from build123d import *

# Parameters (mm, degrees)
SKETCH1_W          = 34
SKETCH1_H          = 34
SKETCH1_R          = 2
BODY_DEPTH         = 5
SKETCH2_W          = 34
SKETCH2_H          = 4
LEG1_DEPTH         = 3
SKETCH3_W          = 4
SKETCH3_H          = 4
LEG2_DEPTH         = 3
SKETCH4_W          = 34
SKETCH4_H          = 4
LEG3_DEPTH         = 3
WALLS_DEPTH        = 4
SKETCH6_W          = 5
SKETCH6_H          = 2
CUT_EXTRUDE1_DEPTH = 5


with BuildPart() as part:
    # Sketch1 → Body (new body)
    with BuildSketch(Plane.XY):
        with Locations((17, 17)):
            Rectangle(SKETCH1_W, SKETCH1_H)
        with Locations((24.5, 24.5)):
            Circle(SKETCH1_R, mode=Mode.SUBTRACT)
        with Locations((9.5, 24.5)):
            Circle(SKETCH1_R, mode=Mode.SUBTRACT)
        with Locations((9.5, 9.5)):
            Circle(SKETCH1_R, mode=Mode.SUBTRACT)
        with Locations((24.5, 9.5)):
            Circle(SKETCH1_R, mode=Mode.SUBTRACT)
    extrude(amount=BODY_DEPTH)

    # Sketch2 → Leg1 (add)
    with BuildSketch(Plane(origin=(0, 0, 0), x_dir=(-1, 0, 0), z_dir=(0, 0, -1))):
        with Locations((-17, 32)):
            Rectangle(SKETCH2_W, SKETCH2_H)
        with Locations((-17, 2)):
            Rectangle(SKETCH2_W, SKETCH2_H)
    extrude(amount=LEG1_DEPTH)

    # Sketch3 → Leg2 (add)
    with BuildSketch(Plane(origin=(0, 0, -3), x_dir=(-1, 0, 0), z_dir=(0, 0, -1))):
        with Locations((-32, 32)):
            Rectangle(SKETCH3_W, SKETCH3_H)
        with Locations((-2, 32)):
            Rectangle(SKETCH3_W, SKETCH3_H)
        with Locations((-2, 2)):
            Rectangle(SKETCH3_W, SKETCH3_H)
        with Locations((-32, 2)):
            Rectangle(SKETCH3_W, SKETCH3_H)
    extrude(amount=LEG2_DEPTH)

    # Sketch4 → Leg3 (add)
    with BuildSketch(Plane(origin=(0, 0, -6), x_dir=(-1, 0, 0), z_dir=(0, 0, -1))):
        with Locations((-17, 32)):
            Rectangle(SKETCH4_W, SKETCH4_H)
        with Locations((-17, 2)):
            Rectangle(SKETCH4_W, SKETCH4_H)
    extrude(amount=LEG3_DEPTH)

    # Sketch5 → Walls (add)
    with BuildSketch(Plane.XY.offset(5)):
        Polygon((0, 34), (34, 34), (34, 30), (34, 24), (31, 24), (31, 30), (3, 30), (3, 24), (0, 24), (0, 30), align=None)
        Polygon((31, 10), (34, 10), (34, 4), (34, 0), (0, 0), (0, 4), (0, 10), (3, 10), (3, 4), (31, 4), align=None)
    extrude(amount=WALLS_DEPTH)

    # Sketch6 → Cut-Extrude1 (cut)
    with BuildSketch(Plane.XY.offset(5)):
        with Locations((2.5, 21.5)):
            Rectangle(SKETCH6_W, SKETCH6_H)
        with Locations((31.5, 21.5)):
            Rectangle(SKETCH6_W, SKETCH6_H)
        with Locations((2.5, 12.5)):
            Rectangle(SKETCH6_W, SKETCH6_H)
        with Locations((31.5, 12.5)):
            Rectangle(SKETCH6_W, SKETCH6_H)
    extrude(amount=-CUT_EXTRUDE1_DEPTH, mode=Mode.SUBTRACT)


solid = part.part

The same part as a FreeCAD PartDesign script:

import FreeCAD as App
import Part
import Sketcher
Q = App.Units.Quantity


def add_polygon(sketch, points):
    """Adds a closed chain of lines whose ends are joined by coincident constraints."""
    first, n = sketch.GeometryCount, len(points)
    for a, b in zip(points, points[1:] + points[:1]):
        sketch.addGeometry(Part.LineSegment(App.Vector(*a, 0), App.Vector(*b, 0)), False)
    for i in range(n):
        sketch.addConstraint(Sketcher.Constraint("Coincident", first + i, 2, first + (i + 1) % n, 1))

doc = App.newDocument("Part")
body = doc.addObject("PartDesign::Body", "Body")

sketch1 = body.newObject("Sketcher::SketchObject", "Sketch")
sketch1.AttachmentSupport = (doc.getObject("XY_Plane"), [""])
sketch1.MapMode = "FlatFace"
add_polygon(sketch1, [(0, 34), (0, 0), (34, 0), (34, 34)])
sketch1.addGeometry(Part.Circle(App.Vector(9.5, 9.5, 0), App.Vector(0, 0, 1), 2), False)
sketch1.addGeometry(Part.Circle(App.Vector(24.5, 9.5, 0), App.Vector(0, 0, 1), 2), False)
sketch1.addGeometry(Part.Circle(App.Vector(9.5, 24.5, 0), App.Vector(0, 0, 1), 2), False)
sketch1.addGeometry(Part.Circle(App.Vector(24.5, 24.5, 0), App.Vector(0, 0, 1), 2), False)
sketch1.addConstraint([
    Sketcher.Constraint("Vertical", 0),
    Sketcher.Constraint("Horizontal", 1),
    Sketcher.Constraint("Vertical", 2),
    Sketcher.Constraint("Horizontal", 3),
    Sketcher.Constraint("Coincident", 0, 2, -1, 1),
    Sketcher.Constraint("Equal", 4, 5),
    Sketcher.Constraint("Equal", 5, 6),
    Sketcher.Constraint("Equal", 6, 7),
    Sketcher.Constraint("Horizontal", 4, 3, 5, 3),
    Sketcher.Constraint("Horizontal", 6, 3, 7, 3),
    Sketcher.Constraint("Vertical", 4, 3, 6, 3),
    Sketcher.Constraint("Vertical", 5, 3, 7, 3),
    Sketcher.Constraint("Equal", 3, 0),
    Sketcher.Constraint("Diameter", 4, Q("4 mm")),
    Sketcher.Constraint("DistanceX", 1, 1, 1, 2, Q("34 mm")),
    Sketcher.Constraint("DistanceX", 4, 3, 5, 3, Q("15 mm")),
    Sketcher.Constraint("DistanceY", 4, 3, 6, 3, Q("15 mm")),
    Sketcher.Constraint("DistanceX", -1, 1, 4, 3, Q("9.5 mm")),
    Sketcher.Constraint("DistanceY", -1, 1, 4, 3, Q("9.5 mm")),
])
pad1 = body.newObject("PartDesign::Pad", "Pad")
pad1.Profile = sketch1
pad1.Length = 5

sketch2 = body.newObject("Sketcher::SketchObject", "Sketch001")
sketch2.AttachmentSupport = (doc.getObject("XY_Plane"), [""])
sketch2.MapMode = "FlatFace"
add_polygon(sketch2, [(34, 34), (34, 30), (0, 30), (0, 34)])
add_polygon(sketch2, [(34, 4), (34, 0), (0, 0), (0, 4)])
sketch2.addConstraint([
    Sketcher.Constraint("Vertical", 0),
    Sketcher.Constraint("Horizontal", 1),
    Sketcher.Constraint("Vertical", 2),
    Sketcher.Constraint("Horizontal", 3),
    Sketcher.Constraint("Vertical", 4),
    Sketcher.Constraint("Horizontal", 5),
    Sketcher.Constraint("Vertical", 6),
    Sketcher.Constraint("Horizontal", 7),
    Sketcher.Constraint("Coincident", 5, 2, -1, 1),
    Sketcher.Constraint("PointOnObject", 1, 2, -2),
    Sketcher.Constraint("Vertical", 3, 2, 4, 2),
    Sketcher.Constraint("Equal", 2, 4),
    Sketcher.Constraint("DistanceX", 1, 2, 1, 1, Q("34 mm")),
    Sketcher.Constraint("DistanceY", 0, 2, 0, 1, Q("4 mm")),
    Sketcher.Constraint("DistanceY", -1, 1, 0, 2, Q("30 mm")),
])
pad2 = body.newObject("PartDesign::Pad", "Pad001")
pad2.Profile = sketch2
pad2.Length = 3
pad2.Reversed = True

sketch3 = body.newObject("Sketcher::SketchObject", "Sketch002")
sketch3.AttachmentSupport = (doc.getObject("XY_Plane"), [""])
sketch3.MapMode = "FlatFace"
sketch3.AttachmentOffset = App.Placement(App.Vector(0, 0, -3), App.Rotation())
add_polygon(sketch3, [(34, 34), (34, 30), (30, 30), (30, 34)])
add_polygon(sketch3, [(4, 34), (4, 30), (0, 30), (0, 34)])
add_polygon(sketch3, [(4, 4), (4, 0), (0, 0), (0, 4)])
add_polygon(sketch3, [(34, 4), (34, 0), (30, 0), (30, 4)])
sketch3.addConstraint([
    Sketcher.Constraint("Vertical", 0),
    Sketcher.Constraint("Horizontal", 1),
    Sketcher.Constraint("Vertical", 2),
    Sketcher.Constraint("Horizontal", 3),
    Sketcher.Constraint("Vertical", 4),
    Sketcher.Constraint("Horizontal", 5),
    Sketcher.Constraint("Vertical", 6),
    Sketcher.Constraint("Horizontal", 7),
    Sketcher.Constraint("Vertical", 8),
    Sketcher.Constraint("Horizontal", 9),
    Sketcher.Constraint("Vertical", 10),
    Sketcher.Constraint("Horizontal", 11),
    Sketcher.Constraint("Vertical", 12),
    Sketcher.Constraint("Horizontal", 13),
    Sketcher.Constraint("Vertical", 14),
    Sketcher.Constraint("Horizontal", 15),
    Sketcher.Constraint("Coincident", 9, 2, -1, 1),
    Sketcher.Constraint("PointOnObject", 5, 2, -2),
    Sketcher.Constraint("PointOnObject", 12, 2, -1),
    Sketcher.Constraint("Horizontal", 1, 2, 4, 2),
    Sketcher.Constraint("Horizontal", 3, 2, 6, 2),
    Sketcher.Constraint("Horizontal", 11, 2, 14, 2),
    Sketcher.Constraint("Vertical", 7, 2, 8, 2),
    Sketcher.Constraint("Vertical", 3, 2, 12, 2),
    Sketcher.Constraint("Vertical", 2, 2, 13, 2),
    Sketcher.Constraint("Equal", 3, 5),
    Sketcher.Constraint("Equal", 15, 0),
    Sketcher.Constraint("Equal", 6, 8),
    Sketcher.Constraint("DistanceX", 1, 2, 1, 1, Q("4 mm")),
    Sketcher.Constraint("DistanceX", -1, 1, 0, 2, Q("34 mm")),
    Sketcher.Constraint("DistanceY", -1, 1, 0, 2, Q("30 mm")),
])
pad3 = body.newObject("PartDesign::Pad", "Pad002")
pad3.Profile = sketch3
pad3.Length = 3
pad3.Reversed = True

sketch4 = body.newObject("Sketcher::SketchObject", "Sketch003")
sketch4.AttachmentSupport = (doc.getObject("XY_Plane"), [""])
sketch4.MapMode = "FlatFace"
sketch4.AttachmentOffset = App.Placement(App.Vector(0, 0, -6), App.Rotation())
add_polygon(sketch4, [(34, 34), (34, 30), (0, 30), (0, 34)])
add_polygon(sketch4, [(34, 4), (34, 0), (0, 0), (0, 4)])
sketch4.addConstraint([
    Sketcher.Constraint("Vertical", 0),
    Sketcher.Constraint("Horizontal", 1),
    Sketcher.Constraint("Vertical", 2),
    Sketcher.Constraint("Horizontal", 3),
    Sketcher.Constraint("Vertical", 4),
    Sketcher.Constraint("Horizontal", 5),
    Sketcher.Constraint("Vertical", 6),
    Sketcher.Constraint("Horizontal", 7),
    Sketcher.Constraint("Coincident", 5, 2, -1, 1),
    Sketcher.Constraint("PointOnObject", 1, 2, -2),
    Sketcher.Constraint("Vertical", 3, 2, 4, 2),
    Sketcher.Constraint("Equal", 2, 4),
    Sketcher.Constraint("DistanceX", 1, 2, 1, 1, Q("34 mm")),
    Sketcher.Constraint("DistanceY", 0, 2, 0, 1, Q("4 mm")),
    Sketcher.Constraint("DistanceY", -1, 1, 0, 2, Q("30 mm")),
])
pad4 = body.newObject("PartDesign::Pad", "Pad003")
pad4.Profile = sketch4
pad4.Length = 3
pad4.Reversed = True

sketch5 = body.newObject("Sketcher::SketchObject", "Sketch004")
sketch5.AttachmentSupport = (doc.getObject("XY_Plane"), [""])
sketch5.MapMode = "FlatFace"
sketch5.AttachmentOffset = App.Placement(App.Vector(0, 0, 5), App.Rotation())
add_polygon(sketch5, [(34, 34), (0, 34), (0, 24), (3, 24), (3, 30), (31, 30), (31, 24), (34, 24)])
add_polygon(sketch5, [(34, 10), (31, 10), (31, 4), (3, 4), (3, 10), (0, 10), (0, 0), (34, 0)])
sketch5.addConstraint([
    Sketcher.Constraint("Horizontal", 0),
    Sketcher.Constraint("Vertical", 1),
    Sketcher.Constraint("Horizontal", 2),
    Sketcher.Constraint("Vertical", 3),
    Sketcher.Constraint("Horizontal", 4),
    Sketcher.Constraint("Vertical", 5),
    Sketcher.Constraint("Horizontal", 6),
    Sketcher.Constraint("Vertical", 7),
    Sketcher.Constraint("Horizontal", 8),
    Sketcher.Constraint("Vertical", 9),
    Sketcher.Constraint("Horizontal", 10),
    Sketcher.Constraint("Vertical", 11),
    Sketcher.Constraint("Horizontal", 12),
    Sketcher.Constraint("Vertical", 13),
    Sketcher.Constraint("Horizontal", 14),
    Sketcher.Constraint("Vertical", 15),
    Sketcher.Constraint("Coincident", 13, 2, -1, 1),
    Sketcher.Constraint("PointOnObject", 0, 2, -2),
    Sketcher.Constraint("Horizontal", 2, 2, 5, 2),
    Sketcher.Constraint("Horizontal", 8, 2, 11, 2),
    Sketcher.Constraint("Vertical", 5, 2, 8, 2),
    Sketcher.Constraint("Vertical", 3, 2, 10, 2),
    Sketcher.Constraint("Vertical", 7, 2, 14, 2),
    Sketcher.Constraint("Equal", 2, 6),
    Sketcher.Constraint("Equal", 5, 9),
    Sketcher.Constraint("Equal", 7, 13),
    Sketcher.Constraint("DistanceX", 0, 2, 0, 1, Q("34 mm")),
    Sketcher.Constraint("DistanceX", 2, 1, 2, 2, Q("3 mm")),
    Sketcher.Constraint("DistanceY", 1, 2, 1, 1, Q("10 mm")),
    Sketcher.Constraint("DistanceY", 3, 1, 3, 2, Q("6 mm")),
    Sketcher.Constraint("DistanceY", -1, 1, 0, 2, Q("34 mm")),
])
pad5 = body.newObject("PartDesign::Pad", "Pad004")
pad5.Profile = sketch5
pad5.Length = 4

sketch6 = body.newObject("Sketcher::SketchObject", "Sketch005")
sketch6.AttachmentSupport = (doc.getObject("XY_Plane"), [""])
sketch6.MapMode = "FlatFace"
sketch6.AttachmentOffset = App.Placement(App.Vector(0, 0, 5), App.Rotation())
add_polygon(sketch6, [(0, 22.5), (0, 20.5), (5, 20.5), (5, 22.5)])
add_polygon(sketch6, [(29, 22.5), (29, 20.5), (34, 20.5), (34, 22.5)])
add_polygon(sketch6, [(0, 13.5), (0, 11.5), (5, 11.5), (5, 13.5)])
add_polygon(sketch6, [(29, 13.5), (29, 11.5), (34, 11.5), (34, 13.5)])
sketch6.addConstraint([
    Sketcher.Constraint("Vertical", 0),
    Sketcher.Constraint("Horizontal", 1),
    Sketcher.Constraint("Vertical", 2),
    Sketcher.Constraint("Horizontal", 3),
    Sketcher.Constraint("Vertical", 4),
    Sketcher.Constraint("Horizontal", 5),
    Sketcher.Constraint("Vertical", 6),
    Sketcher.Constraint("Horizontal", 7),
    Sketcher.Constraint("Vertical", 8),
    Sketcher.Constraint("Horizontal", 9),
    Sketcher.Constraint("Vertical", 10),
    Sketcher.Constraint("Horizontal", 11),
    Sketcher.Constraint("Vertical", 12),
    Sketcher.Constraint("Horizontal", 13),
    Sketcher.Constraint("Vertical", 14),
    Sketcher.Constraint("Horizontal", 15),
    Sketcher.Constraint("PointOnObject", 0, 2, -2),
    Sketcher.Constraint("PointOnObject", 8, 2, -2),
    Sketcher.Constraint("Horizontal", 1, 2, 4, 2),
    Sketcher.Constraint("Horizontal", 3, 2, 6, 2),
    Sketcher.Constraint("Horizontal", 9, 2, 12, 2),
    Sketcher.Constraint("Horizontal", 11, 2, 14, 2),
    Sketcher.Constraint("Vertical", 2, 2, 9, 2),
    Sketcher.Constraint("Vertical", 7, 2, 12, 2),
    Sketcher.Constraint("Vertical", 6, 2, 13, 2),
    Sketcher.Constraint("Equal", 3, 5),
    Sketcher.Constraint("Equal", 6, 8),
    Sketcher.Constraint("DistanceX", 1, 1, 1, 2, Q("5 mm")),
    Sketcher.Constraint("DistanceY", 0, 2, 0, 1, Q("2 mm")),
    Sketcher.Constraint("DistanceX", -1, 1, 4, 2, Q("29 mm")),
    Sketcher.Constraint("DistanceY", 8, 2, 0, 2, Q("9 mm")),
    Sketcher.Constraint("DistanceY", -1, 1, 0, 2, Q("20.5 mm")),
])
pocket1 = body.newObject("PartDesign::Pocket", "Pocket")
pocket1.Profile = sketch6
pocket1.Length = 5

doc.recompute()
